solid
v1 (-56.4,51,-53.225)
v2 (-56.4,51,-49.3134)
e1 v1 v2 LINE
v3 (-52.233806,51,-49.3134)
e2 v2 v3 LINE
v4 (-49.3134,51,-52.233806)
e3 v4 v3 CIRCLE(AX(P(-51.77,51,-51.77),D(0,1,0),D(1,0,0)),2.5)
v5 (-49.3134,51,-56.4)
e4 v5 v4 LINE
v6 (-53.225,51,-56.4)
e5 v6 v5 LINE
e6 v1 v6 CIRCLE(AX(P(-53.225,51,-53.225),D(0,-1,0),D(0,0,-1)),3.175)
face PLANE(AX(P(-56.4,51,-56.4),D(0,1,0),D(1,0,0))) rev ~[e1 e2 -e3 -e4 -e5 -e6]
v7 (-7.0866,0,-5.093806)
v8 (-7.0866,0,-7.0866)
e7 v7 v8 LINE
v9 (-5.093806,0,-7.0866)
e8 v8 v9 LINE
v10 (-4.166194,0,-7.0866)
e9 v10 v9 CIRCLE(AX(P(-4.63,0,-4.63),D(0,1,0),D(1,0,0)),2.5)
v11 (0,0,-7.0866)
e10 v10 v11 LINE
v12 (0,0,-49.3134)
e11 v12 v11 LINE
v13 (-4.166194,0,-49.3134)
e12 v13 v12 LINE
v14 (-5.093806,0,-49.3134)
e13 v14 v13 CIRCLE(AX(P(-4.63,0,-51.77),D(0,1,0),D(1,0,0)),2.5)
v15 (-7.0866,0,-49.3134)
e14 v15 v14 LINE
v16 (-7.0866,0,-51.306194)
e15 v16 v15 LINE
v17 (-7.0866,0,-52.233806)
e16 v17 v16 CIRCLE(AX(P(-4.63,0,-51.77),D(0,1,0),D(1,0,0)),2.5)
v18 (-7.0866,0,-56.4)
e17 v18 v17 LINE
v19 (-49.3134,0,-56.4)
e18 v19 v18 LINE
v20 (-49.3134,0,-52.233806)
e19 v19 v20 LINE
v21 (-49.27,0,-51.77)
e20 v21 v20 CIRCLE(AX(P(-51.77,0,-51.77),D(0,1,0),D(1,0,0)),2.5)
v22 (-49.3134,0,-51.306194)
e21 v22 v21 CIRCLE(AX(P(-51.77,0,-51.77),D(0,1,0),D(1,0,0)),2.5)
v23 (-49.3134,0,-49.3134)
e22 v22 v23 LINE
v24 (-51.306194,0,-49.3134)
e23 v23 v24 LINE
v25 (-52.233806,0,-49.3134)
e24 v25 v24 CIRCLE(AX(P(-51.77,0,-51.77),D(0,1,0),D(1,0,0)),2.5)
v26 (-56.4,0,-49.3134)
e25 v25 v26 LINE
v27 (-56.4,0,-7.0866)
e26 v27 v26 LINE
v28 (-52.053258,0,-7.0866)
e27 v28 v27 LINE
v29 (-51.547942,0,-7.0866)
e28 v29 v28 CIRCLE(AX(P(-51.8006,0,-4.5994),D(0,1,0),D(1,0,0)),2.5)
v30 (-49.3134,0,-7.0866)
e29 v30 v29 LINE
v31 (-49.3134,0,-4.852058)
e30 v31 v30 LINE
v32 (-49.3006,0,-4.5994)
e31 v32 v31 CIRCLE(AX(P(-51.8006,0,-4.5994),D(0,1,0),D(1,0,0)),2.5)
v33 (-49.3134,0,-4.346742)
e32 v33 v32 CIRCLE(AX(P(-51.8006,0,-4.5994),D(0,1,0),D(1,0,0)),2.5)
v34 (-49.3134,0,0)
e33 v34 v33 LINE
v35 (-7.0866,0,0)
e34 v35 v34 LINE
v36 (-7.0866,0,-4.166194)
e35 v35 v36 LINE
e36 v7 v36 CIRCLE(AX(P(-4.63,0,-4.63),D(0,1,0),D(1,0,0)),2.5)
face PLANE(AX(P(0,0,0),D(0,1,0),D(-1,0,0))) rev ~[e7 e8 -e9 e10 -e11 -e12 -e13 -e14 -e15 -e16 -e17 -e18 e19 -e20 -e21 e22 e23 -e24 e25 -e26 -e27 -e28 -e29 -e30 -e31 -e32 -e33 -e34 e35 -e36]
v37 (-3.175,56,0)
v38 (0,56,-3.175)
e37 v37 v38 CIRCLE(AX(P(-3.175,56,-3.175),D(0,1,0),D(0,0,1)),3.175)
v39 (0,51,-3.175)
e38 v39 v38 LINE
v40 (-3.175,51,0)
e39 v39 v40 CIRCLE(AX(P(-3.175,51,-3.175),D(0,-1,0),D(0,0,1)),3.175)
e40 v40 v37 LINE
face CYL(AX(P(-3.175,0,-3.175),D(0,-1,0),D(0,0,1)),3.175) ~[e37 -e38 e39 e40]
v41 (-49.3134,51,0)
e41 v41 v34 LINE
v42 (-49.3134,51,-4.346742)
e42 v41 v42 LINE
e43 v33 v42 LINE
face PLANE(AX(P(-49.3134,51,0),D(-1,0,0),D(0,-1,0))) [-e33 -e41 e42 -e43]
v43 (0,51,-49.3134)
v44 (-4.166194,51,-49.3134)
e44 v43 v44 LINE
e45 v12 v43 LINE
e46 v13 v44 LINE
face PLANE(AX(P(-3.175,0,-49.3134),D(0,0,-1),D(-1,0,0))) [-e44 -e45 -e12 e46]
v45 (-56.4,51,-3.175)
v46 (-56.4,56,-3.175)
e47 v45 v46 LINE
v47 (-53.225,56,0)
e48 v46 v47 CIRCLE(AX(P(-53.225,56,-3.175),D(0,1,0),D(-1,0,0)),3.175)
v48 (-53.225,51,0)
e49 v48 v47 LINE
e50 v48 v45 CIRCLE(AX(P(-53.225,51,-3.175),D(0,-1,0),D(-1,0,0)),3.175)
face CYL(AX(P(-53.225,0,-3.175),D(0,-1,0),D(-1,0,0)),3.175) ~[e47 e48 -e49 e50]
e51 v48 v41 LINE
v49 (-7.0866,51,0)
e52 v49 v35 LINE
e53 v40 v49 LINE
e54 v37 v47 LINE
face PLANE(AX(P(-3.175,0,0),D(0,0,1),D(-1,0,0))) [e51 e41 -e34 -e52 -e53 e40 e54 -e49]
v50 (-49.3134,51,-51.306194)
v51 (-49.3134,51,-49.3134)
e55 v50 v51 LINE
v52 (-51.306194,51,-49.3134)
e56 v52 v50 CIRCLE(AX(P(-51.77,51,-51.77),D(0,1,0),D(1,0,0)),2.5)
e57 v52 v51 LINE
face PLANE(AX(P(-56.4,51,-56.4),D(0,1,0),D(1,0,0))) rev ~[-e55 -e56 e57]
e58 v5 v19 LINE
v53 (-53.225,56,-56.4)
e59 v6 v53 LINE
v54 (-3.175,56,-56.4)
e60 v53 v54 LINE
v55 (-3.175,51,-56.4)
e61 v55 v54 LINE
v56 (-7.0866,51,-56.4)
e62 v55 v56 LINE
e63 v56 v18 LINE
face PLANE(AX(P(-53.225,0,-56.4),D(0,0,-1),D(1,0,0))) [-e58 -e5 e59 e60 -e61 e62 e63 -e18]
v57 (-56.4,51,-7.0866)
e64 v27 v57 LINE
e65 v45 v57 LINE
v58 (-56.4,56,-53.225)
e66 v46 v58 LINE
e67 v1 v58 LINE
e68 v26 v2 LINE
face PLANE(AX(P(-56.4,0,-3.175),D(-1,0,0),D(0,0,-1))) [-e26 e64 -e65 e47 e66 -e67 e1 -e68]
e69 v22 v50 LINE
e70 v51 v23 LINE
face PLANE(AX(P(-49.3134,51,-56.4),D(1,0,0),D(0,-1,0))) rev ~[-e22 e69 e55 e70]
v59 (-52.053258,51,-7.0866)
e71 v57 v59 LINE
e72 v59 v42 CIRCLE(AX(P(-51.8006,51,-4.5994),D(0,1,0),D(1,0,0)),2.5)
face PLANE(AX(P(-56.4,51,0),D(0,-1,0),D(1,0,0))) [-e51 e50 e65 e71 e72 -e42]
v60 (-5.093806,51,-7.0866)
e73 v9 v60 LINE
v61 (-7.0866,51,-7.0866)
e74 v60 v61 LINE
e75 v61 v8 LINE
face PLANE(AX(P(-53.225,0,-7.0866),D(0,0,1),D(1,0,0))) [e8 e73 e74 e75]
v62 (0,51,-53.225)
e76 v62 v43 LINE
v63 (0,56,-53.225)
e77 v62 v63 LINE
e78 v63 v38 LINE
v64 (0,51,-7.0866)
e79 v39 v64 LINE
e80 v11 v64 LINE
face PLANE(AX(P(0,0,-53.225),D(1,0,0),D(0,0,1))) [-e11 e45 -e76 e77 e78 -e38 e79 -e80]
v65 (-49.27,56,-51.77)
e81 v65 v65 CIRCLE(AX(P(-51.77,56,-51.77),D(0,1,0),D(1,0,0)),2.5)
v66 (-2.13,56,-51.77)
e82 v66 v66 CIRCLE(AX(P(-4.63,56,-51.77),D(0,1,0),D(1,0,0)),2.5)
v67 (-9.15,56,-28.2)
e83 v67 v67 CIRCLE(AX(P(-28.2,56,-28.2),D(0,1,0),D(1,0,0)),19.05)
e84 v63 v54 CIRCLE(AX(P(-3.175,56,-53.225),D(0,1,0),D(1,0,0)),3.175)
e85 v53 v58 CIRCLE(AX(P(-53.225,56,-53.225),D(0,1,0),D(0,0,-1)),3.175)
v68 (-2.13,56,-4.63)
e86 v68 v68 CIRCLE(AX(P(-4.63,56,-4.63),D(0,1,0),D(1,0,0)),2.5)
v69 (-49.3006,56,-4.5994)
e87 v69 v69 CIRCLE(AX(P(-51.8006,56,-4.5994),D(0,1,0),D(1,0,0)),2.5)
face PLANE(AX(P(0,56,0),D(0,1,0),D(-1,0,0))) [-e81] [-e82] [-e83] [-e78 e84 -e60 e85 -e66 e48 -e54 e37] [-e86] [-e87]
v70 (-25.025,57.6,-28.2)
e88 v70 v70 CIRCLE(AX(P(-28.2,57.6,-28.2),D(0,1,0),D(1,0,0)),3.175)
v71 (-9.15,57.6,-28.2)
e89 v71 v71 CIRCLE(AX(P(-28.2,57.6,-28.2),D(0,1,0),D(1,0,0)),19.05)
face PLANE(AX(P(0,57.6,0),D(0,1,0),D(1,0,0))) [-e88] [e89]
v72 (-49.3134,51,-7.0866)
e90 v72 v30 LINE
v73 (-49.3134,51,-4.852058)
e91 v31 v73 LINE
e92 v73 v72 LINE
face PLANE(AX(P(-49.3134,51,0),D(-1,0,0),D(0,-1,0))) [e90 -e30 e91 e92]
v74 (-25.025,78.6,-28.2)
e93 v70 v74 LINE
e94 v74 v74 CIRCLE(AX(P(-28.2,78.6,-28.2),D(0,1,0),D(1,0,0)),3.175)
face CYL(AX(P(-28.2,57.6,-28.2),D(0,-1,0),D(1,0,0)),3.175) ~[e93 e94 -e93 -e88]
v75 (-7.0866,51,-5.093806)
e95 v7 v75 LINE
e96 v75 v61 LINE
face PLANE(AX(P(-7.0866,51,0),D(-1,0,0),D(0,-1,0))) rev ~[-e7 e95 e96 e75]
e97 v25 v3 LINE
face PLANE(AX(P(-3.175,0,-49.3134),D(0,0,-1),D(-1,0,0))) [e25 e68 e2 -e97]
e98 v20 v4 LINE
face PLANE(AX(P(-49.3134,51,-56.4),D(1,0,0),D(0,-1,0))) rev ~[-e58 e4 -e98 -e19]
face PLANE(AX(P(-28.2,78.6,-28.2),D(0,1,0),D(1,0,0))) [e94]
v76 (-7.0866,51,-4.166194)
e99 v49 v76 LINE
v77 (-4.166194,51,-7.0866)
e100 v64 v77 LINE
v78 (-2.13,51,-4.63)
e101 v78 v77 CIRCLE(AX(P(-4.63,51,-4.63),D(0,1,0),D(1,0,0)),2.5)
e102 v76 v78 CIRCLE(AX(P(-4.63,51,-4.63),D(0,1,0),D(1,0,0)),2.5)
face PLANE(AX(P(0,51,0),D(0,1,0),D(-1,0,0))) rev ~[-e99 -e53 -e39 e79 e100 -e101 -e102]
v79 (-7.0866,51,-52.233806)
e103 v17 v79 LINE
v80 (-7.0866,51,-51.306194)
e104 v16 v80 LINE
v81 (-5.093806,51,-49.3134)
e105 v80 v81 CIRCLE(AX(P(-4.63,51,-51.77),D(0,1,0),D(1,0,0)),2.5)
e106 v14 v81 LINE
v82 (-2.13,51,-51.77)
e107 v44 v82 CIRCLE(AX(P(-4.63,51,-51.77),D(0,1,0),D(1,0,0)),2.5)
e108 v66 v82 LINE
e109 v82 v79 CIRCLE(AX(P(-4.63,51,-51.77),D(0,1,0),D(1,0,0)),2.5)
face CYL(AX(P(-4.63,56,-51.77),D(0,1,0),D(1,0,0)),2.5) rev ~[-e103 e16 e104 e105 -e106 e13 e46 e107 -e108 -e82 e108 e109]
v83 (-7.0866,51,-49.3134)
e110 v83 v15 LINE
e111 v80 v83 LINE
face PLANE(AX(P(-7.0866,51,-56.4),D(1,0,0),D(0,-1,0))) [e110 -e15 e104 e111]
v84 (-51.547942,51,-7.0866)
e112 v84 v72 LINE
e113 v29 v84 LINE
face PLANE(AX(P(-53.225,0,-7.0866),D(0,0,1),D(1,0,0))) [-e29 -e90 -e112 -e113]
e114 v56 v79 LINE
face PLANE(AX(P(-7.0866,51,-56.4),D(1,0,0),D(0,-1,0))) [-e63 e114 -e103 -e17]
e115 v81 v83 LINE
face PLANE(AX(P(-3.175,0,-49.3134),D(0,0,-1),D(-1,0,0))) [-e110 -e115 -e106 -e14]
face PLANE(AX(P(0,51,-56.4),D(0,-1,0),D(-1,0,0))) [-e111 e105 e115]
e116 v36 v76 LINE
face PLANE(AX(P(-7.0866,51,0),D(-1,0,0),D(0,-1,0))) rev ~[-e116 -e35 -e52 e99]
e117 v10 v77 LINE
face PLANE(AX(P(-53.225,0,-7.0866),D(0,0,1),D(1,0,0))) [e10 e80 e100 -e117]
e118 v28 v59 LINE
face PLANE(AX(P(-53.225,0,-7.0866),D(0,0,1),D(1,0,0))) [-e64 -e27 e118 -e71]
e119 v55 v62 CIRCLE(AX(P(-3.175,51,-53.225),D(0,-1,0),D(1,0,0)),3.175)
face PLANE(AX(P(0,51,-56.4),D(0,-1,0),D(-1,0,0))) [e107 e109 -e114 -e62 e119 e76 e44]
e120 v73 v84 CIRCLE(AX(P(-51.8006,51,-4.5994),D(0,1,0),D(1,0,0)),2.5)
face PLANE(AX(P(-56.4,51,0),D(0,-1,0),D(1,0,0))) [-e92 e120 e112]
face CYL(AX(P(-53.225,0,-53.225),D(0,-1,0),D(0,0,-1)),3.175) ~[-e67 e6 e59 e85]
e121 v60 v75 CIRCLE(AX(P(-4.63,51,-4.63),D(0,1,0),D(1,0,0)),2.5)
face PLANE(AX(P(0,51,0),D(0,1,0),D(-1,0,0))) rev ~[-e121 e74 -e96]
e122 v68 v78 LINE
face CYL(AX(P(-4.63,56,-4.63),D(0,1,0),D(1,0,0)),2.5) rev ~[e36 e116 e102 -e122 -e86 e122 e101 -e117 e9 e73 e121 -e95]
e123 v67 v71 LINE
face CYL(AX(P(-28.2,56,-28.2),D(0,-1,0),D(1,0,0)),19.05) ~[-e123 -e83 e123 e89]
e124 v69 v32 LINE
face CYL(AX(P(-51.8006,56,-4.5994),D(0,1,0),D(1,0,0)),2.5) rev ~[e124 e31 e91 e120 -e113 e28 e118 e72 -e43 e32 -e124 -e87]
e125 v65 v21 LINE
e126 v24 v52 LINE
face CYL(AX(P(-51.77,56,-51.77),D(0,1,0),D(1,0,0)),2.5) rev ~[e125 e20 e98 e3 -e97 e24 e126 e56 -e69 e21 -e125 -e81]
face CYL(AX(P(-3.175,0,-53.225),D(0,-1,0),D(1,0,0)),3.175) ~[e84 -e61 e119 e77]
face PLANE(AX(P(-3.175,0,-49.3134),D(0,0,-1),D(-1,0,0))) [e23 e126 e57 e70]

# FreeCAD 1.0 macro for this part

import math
import FreeCAD as App
import Part
import Sketcher

doc = App.newDocument("Part")
body = doc.addObject("PartDesign::Body", "Body")

# Sketch on XZ plane
sketch1 = body.newObject("Sketcher::SketchObject", "Sketch")
sketch1.AttachmentSupport = (doc.getObject("XZ_Plane"), [""])
sketch1.MapMode = "FlatFace"
sketch1.addGeometry([
    Part.LineSegment(App.Vector(-53.2, 0, 0), App.Vector(-3.2, 0, 0)),  # 0
    Part.ArcOfCircle(Part.Circle(App.Vector(-3.2, -3.2, 0), App.Vector(0, 0, 1), 3.2), math.radians(0), math.radians(90)),  # 1
    Part.LineSegment(App.Vector(0, -3.2, 0), App.Vector(0, -53.2, 0)),  # 2
    Part.ArcOfCircle(Part.Circle(App.Vector(-3.2, -53.2, 0), App.Vector(0, 0, 1), 3.2), math.radians(-90), math.radians(0)),  # 3
    Part.LineSegment(App.Vector(-3.2, -56.4, 0), App.Vector(-53.2, -56.4, 0)),  # 4
    Part.ArcOfCircle(Part.Circle(App.Vector(-53.2, -53.2, 0), App.Vector(0, 0, 1), 3.2), math.radians(180), math.radians(270)),  # 5
    Part.LineSegment(App.Vector(-56.4, -53.2, 0), App.Vector(-56.4, -3.2, 0)),  # 6
    Part.ArcOfCircle(Part.Circle(App.Vector(-53.2, -3.2, 0), App.Vector(0, 0, 1), 3.2), math.radians(90), math.radians(180)),  # 7
], False)
sketch1.addConstraint([
    Sketcher.Constraint("Tangent", 0, 2, 1, 2),
    Sketcher.Constraint("Tangent", 1, 1, 2, 1),
    Sketcher.Constraint("Tangent", 2, 2, 3, 2),
    Sketcher.Constraint("Tangent", 3, 1, 4, 1),
    Sketcher.Constraint("Tangent", 4, 2, 5, 2),
    Sketcher.Constraint("Tangent", 5, 1, 6, 1),
    Sketcher.Constraint("Tangent", 6, 2, 7, 2),
    Sketcher.Constraint("Tangent", 7, 1, 0, 1),
    Sketcher.Constraint("Horizontal", 0),
    Sketcher.Constraint("Vertical", 2),
    Sketcher.Constraint("Horizontal", 4),
    Sketcher.Constraint("Vertical", 6),
    Sketcher.Constraint("Equal", 1, 3),
    Sketcher.Constraint("Equal", 3, 5),
    Sketcher.Constraint("Equal", 5, 7),
    Sketcher.Constraint("PointOnObject", 0, 2, -1),
    Sketcher.Constraint("PointOnObject", 1, 1, -2),
    Sketcher.Constraint("Equal", 4, 2),
    Sketcher.Constraint("Radius", 1, 3.175),
    Sketcher.Constraint("DistanceY", 3, 1, -1, 1, 56.4),
])
pad1 = body.newObject("PartDesign::Pad", "Pad")
pad1.Profile = sketch1
pad1.Length = 56
pad1.Reversed = True

# Sketch on XZ plane
sketch2 = body.newObject("Sketcher::SketchObject", "Sketch001")
sketch2.AttachmentSupport = (doc.getObject("XZ_Plane"), [""])
sketch2.MapMode = "FlatFace"
sketch2.AttachmentOffset = App.Placement(App.Vector(0, 0, -56), App.Rotation())
sketch2.addGeometry(Part.Circle(App.Vector(-28, -28, 0), App.Vector(0, 0, 1), 19), False)
sketch2.addConstraint([
    Sketcher.Constraint("Diameter", 0, 38.1),
    Sketcher.Constraint("DistanceX", 0, 3, -1, 1, 28.2),
    Sketcher.Constraint("DistanceY", 0, 3, -1, 1, 28.2),
])
pad2 = body.newObject("PartDesign::Pad", "Pad001")
pad2.Profile = sketch2
pad2.Length = 1.6
pad2.Reversed = True

# Sketch on XZ plane
sketch3 = body.newObject("Sketcher::SketchObject", "Sketch002")
sketch3.AttachmentSupport = (doc.getObject("XZ_Plane"), [""])
sketch3.MapMode = "FlatFace"
sketch3.AttachmentOffset = App.Placement(App.Vector(0, 0, -57.6), App.Rotation())
sketch3.addGeometry(Part.Circle(App.Vector(-28.2, -28.2, 0), App.Vector(0, 0, 1), 3.2), False)
sketch3.addConstraint([
    Sketcher.Constraint("Diameter", 0, 6.35),
    Sketcher.Constraint("DistanceX", 0, 3, -1, 1, 28.2),
    Sketcher.Constraint("DistanceY", 0, 3, -1, 1, 28.2),
])
pad3 = body.newObject("PartDesign::Pad", "Pad002")
pad3.Profile = sketch3
pad3.Length = 21
pad3.Reversed = True

# Sketch on XZ plane
sketch4 = body.newObject("Sketcher::SketchObject", "Sketch003")
sketch4.AttachmentSupport = (doc.getObject("XZ_Plane"), [""])
sketch4.MapMode = "FlatFace"
sketch4.AttachmentOffset = App.Placement(App.Vector(0, 0, -56), App.Rotation())
sketch4.addGeometry([
    Part.Circle(App.Vector(-51.8, -4.6, 0), App.Vector(0, 0, 1), 2.5),
    Part.Circle(App.Vector(-51.8, -51.8, 0), App.Vector(0, 0, 1), 2.5),
    Part.Circle(App.Vector(-4.6, -51.8, 0), App.Vector(0, 0, 1), 2.5),
    Part.Circle(App.Vector(-4.6, -4.6, 0), App.Vector(0, 0, 1), 2.5),
], False)
sketch4.addConstraint([
    Sketcher.Constraint("Equal", 0, 1),
    Sketcher.Constraint("Equal", 1, 2),
    Sketcher.Constraint("Equal", 2, 3),
    Sketcher.Constraint("Horizontal", 1, 3, 2, 3),
    Sketcher.Constraint("Vertical", 2, 3, 3, 3),
    Sketcher.Constraint("Diameter", 0, 5.0),
    Sketcher.Constraint("DistanceX", 1, 3, 2, 3, 47.14),
    Sketcher.Constraint("DistanceY", 2, 3, 3, 3, 47.14),
    Sketcher.Constraint("DistanceX", 1, 3, -1, 1, 51.77),
    Sketcher.Constraint("DistanceY", 1, 3, -1, 1, 51.77),
    Sketcher.Constraint("DistanceX", 0, 3, -1, 1, 51.8006),
    Sketcher.Constraint("DistanceY", 0, 3, -1, 1, 4.5994),
])
pocket1 = body.newObject("PartDesign::Pocket", "Pocket")
pocket1.Profile = sketch4
pocket1.Type = "ThroughAll"
pocket1.Reversed = True

# Sketch on XY plane
sketch5 = body.newObject("Sketcher::SketchObject", "Sketch004")
sketch5.AttachmentSupport = (doc.getObject("XY_Plane"), [""])
sketch5.MapMode = "FlatFace"
sketch5.addGeometry([
    Part.LineSegment(App.Vector(-49, 51, 0), App.Vector(-56, 51, 0)),  # 0
    Part.LineSegment(App.Vector(-56, 51, 0), App.Vector(-56, 0, 0)),  # 1
    Part.LineSegment(App.Vector(-56, 0, 0), App.Vector(-49, 0, 0)),  # 2
    Part.LineSegment(App.Vector(-49, 0, 0), App.Vector(-49, 51, 0)),  # 3
    Part.LineSegment(App.Vector(0, 0, 0), App.Vector(0, 51, 0)),  # 4
    Part.LineSegment(App.Vector(0, 51, 0), App.Vector(-7, 51, 0)),  # 5
    Part.LineSegment(App.Vector(-7, 51, 0), App.Vector(-7, 0, 0)),  # 6
    Part.LineSegment(App.Vector(-7, 0, 0), App.Vector(0, 0, 0)),  # 7
], False)
sketch5.addConstraint([
    Sketcher.Constraint("Coincident", 0, 2, 1, 1),
    Sketcher.Constraint("Coincident", 1, 2, 2, 1),
    Sketcher.Constraint("Coincident", 2, 2, 3, 1),
    Sketcher.Constraint("Coincident", 3, 2, 0, 1),
    Sketcher.Constraint("Coincident", 4, 2, 5, 1),
    Sketcher.Constraint("Coincident", 5, 2, 6, 1),
    Sketcher.Constraint("Coincident", 6, 2, 7, 1),
    Sketcher.Constraint("Coincident", 7, 2, 4, 1),
    Sketcher.Constraint("Horizontal", 0),
    Sketcher.Constraint("Vertical", 1),
    Sketcher.Constraint("Horizontal", 2),
    Sketcher.Constraint("Vertical", 3),
    Sketcher.Constraint("Vertical", 4),
    Sketcher.Constraint("Horizontal", 5),
    Sketcher.Constraint("Vertical", 6),
    Sketcher.Constraint("Horizontal", 7),
    Sketcher.Constraint("Coincident", 7, 2, -1, 1),
    Sketcher.Constraint("PointOnObject", 1, 2, -1),
    Sketcher.Constraint("Horizontal", 3, 2, 4, 2),
    Sketcher.Constraint("Equal", 2, 5),
    Sketcher.Constraint("DistanceY", 1, 2, 1, 1, 51.0),
    Sketcher.Constraint("DistanceX", 0, 2, 0, 1, 7.0866),
    Sketcher.Constraint("DistanceX", 0, 2, -1, 1, 56.4),
])
pocket2 = body.newObject("PartDesign::Pocket", "Pocket001")
pocket2.Profile = sketch5
pocket2.Length = 7.0866

# Sketch on XY plane
sketch6 = body.newObject("Sketcher::SketchObject", "Sketch005")
sketch6.AttachmentSupport = (doc.getObject("XY_Plane"), [""])
sketch6.MapMode = "FlatFace"
sketch6.AttachmentOffset = App.Placement(App.Vector(0, 0, -56.4), App.Rotation())
sketch6.addGeometry([
    Part.LineSegment(App.Vector(-7, 51, 0), App.Vector(0, 51, 0)),  # 0
    Part.LineSegment(App.Vector(0, 51, 0), App.Vector(0, 0, 0)),  # 1
    Part.LineSegment(App.Vector(0, 0, 0), App.Vector(-7, 0, 0)),  # 2
    Part.LineSegment(App.Vector(-7, 0, 0), App.Vector(-7, 51, 0)),  # 3
    Part.LineSegment(App.Vector(-56, 0, 0), App.Vector(-56, 51, 0)),  # 4
    Part.LineSegment(App.Vector(-56, 51, 0), App.Vector(-49, 51, 0)),  # 5
    Part.LineSegment(App.Vector(-49, 51, 0), App.Vector(-49, 0, 0)),  # 6
    Part.LineSegment(App.Vector(-49, 0, 0), App.Vector(-56, 0, 0)),  # 7
], False)
sketch6.addConstraint([
    Sketcher.Constraint("Coincident", 0, 2, 1, 1),
    Sketcher.Constraint("Coincident", 1, 2, 2, 1),
    Sketcher.Constraint("Coincident", 2, 2, 3, 1),
    Sketcher.Constraint("Coincident", 3, 2, 0, 1),
    Sketcher.Constraint("Coincident", 4, 2, 5, 1),
    Sketcher.Constraint("Coincident", 5, 2, 6, 1),
    Sketcher.Constraint("Coincident", 6, 2, 7, 1),
    Sketcher.Constraint("Coincident", 7, 2, 4, 1),
    Sketcher.Constraint("Horizontal", 0),
    Sketcher.Constraint("Vertical", 1),
    Sketcher.Constraint("Horizontal", 2),
    Sketcher.Constraint("Vertical", 3),
    Sketcher.Constraint("Vertical", 4),
    Sketcher.Constraint("Horizontal", 5),
    Sketcher.Constraint("Vertical", 6),
    Sketcher.Constraint("Horizontal", 7),
    Sketcher.Constraint("Coincident", 1, 2, -1, 1),
    Sketcher.Constraint("PointOnObject", 6, 2, -1),
    Sketcher.Constraint("Horizontal", 3, 2, 4, 2),
    Sketcher.Constraint("Equal", 2, 5),
    Sketcher.Constraint("DistanceY", 1, 2, 1, 1, 51.0),
    Sketcher.Constraint("DistanceX", 0, 1, 0, 2, 7.0866),
    Sketcher.Constraint("DistanceX", 4, 2, -1, 1, 56.4),
])
pocket3 = body.newObject("PartDesign::Pocket", "Pocket002")
pocket3.Profile = sketch6
pocket3.Length = 7.0866
pocket3.Reversed = True

doc.recompute()
